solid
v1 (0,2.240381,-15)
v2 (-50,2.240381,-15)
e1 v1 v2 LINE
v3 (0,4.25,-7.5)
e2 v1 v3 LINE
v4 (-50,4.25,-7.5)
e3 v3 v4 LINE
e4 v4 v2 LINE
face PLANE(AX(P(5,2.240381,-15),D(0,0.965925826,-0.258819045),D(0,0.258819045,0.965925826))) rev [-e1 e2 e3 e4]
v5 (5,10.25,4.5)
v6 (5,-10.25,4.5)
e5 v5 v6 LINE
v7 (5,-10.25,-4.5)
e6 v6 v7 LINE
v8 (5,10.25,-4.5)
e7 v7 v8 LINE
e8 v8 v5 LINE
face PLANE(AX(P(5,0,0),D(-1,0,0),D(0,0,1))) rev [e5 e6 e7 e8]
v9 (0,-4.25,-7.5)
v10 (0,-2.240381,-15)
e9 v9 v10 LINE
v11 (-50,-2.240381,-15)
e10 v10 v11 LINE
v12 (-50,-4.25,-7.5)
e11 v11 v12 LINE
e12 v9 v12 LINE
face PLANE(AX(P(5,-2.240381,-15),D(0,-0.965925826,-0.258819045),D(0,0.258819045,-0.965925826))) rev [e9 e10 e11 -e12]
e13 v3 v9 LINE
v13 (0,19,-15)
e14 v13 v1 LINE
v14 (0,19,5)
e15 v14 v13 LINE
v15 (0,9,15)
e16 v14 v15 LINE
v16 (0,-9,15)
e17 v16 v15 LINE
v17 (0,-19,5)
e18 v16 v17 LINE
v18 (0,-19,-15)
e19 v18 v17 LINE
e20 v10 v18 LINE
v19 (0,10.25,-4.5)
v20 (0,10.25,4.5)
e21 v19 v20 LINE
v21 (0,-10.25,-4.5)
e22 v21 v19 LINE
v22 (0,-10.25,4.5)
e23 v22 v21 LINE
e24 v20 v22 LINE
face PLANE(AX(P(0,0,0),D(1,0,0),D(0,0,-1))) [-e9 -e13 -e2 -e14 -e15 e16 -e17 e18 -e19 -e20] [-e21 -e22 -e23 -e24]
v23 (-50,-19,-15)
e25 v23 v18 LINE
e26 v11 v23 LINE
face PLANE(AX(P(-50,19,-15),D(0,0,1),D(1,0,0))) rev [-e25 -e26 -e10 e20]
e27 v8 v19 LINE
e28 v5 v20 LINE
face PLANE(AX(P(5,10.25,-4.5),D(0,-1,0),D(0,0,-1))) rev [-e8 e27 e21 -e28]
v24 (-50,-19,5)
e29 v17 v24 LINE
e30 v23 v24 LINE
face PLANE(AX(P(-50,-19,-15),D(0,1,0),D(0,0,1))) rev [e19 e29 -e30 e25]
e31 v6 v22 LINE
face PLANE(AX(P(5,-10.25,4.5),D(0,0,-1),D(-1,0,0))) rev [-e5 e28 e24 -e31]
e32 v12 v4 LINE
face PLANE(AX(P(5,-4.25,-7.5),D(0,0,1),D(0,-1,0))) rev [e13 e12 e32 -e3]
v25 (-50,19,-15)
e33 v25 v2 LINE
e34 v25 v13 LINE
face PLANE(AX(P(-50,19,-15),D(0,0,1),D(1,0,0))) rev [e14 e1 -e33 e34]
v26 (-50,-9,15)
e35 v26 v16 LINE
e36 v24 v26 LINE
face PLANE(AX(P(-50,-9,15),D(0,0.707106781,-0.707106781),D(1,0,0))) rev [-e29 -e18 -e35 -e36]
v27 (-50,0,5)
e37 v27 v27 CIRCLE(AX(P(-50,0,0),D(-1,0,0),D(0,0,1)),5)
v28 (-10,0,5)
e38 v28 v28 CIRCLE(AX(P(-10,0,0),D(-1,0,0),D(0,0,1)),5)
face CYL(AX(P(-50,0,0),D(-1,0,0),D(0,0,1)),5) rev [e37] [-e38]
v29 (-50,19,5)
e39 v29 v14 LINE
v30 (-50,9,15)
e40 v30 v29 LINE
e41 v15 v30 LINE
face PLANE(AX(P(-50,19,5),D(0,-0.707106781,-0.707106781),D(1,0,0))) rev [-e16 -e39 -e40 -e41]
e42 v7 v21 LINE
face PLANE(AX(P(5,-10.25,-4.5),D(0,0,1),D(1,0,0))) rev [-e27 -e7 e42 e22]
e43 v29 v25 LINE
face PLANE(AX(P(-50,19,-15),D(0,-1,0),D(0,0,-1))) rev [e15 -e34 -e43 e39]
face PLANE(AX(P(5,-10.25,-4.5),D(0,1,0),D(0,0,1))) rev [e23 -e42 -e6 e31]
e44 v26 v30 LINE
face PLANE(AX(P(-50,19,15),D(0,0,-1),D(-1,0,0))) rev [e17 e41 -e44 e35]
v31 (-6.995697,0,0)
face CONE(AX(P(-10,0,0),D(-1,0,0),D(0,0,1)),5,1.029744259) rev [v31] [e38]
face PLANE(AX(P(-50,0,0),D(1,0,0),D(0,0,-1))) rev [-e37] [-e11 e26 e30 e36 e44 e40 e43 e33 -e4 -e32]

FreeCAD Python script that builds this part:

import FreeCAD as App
import Part
import Sketcher
Q = App.Units.Quantity


def edges_at(feature, points):
    """Names of the edges that pass closest to the given points."""
    edges = feature.Shape.Edges
    near = lambda p: min(range(len(edges)), key=lambda i: edges[i].distToShape(Part.Vertex(*p))[0])
    return sorted({f"Edge{near(p) + 1}" for p in points})

doc = App.newDocument("Part")
body = doc.addObject("PartDesign::Body", "Body")

# Sketch on YZ plane
sketch1 = doc.addObject("Sketcher::SketchObject", "Sketch")
body.addObject(sketch1)
sketch1.AttachmentSupport = (doc.YZ_Plane, [""])
sketch1.MapMode = "FlatFace"
sketch1.addGeometry(Part.LineSegment(App.Vector(-10, 4, 0), App.Vector(-10, -4, 0)), False)
sketch1.addGeometry(Part.LineSegment(App.Vector(-10, -4, 0), App.Vector(10, -4, 0)), False)
sketch1.addGeometry(Part.LineSegment(App.Vector(10, -4, 0), App.Vector(10, 4, 0)), False)
sketch1.addGeometry(Part.LineSegment(App.Vector(10, 4, 0), App.Vector(-10, 4, 0)), False)
sketch1.addConstraint(Sketcher.Constraint("Coincident", 0, 2, 1, 1))
sketch1.addConstraint(Sketcher.Constraint("Coincident", 1, 2, 2, 1))
sketch1.addConstraint(Sketcher.Constraint("Coincident", 2, 2, 3, 1))
sketch1.addConstraint(Sketcher.Constraint("Coincident", 3, 2, 0, 1))
sketch1.addConstraint(Sketcher.Constraint("Vertical", 0))
sketch1.addConstraint(Sketcher.Constraint("Horizontal", 1))
sketch1.addConstraint(Sketcher.Constraint("Vertical", 2))
sketch1.addConstraint(Sketcher.Constraint("Horizontal", 3))
sketch1.addConstraint(Sketcher.Constraint("Symmetric", 0, 2, 2, 2, -1, 1))
sketch1.addConstraint(Sketcher.Constraint("DistanceY", 0, 2, 0, 1, Q("9 mm")))
sketch1.addConstraint(Sketcher.Constraint("DistanceX", 1, 1, 1, 2, Q("20.5 mm")))
pad1 = doc.addObject("PartDesign::Pad", "Pad")
body.addObject(pad1)
pad1.Profile = sketch1
pad1.Length = 5

# Sketch on YZ plane
sketch2 = doc.addObject("Sketcher::SketchObject", "Sketch001")
body.addObject(sketch2)
sketch2.AttachmentSupport = (doc.YZ_Plane, [""])
sketch2.MapMode = "FlatFace"
sketch2.addGeometry(Part.LineSegment(App.Vector(19, 15, 0), App.Vector(19, -15, 0)), False)
sketch2.addGeometry(Part.LineSegment(App.Vector(19, -15, 0), App.Vector(-19, -15, 0)), False)
sketch2.addGeometry(Part.LineSegment(App.Vector(-19, -15, 0), App.Vector(-19, 15, 0)), False)
sketch2.addGeometry(Part.LineSegment(App.Vector(-19, 15, 0), App.Vector(19, 15, 0)), False)
sketch2.addConstraint(Sketcher.Constraint("Coincident", 0, 2, 1, 1))
sketch2.addConstraint(Sketcher.Constraint("Coincident", 1, 2, 2, 1))
sketch2.addConstraint(Sketcher.Constraint("Coincident", 2, 2, 3, 1))
sketch2.addConstraint(Sketcher.Constraint("Coincident", 3, 2, 0, 1))
sketch2.addConstraint(Sketcher.Constraint("Vertical", 0))
sketch2.addConstraint(Sketcher.Constraint("Horizontal", 1))
sketch2.addConstraint(Sketcher.Constraint("Vertical", 2))
sketch2.addConstraint(Sketcher.Constraint("Horizontal", 3))
sketch2.addConstraint(Sketcher.Constraint("Symmetric", 0, 2, 2, 2, -1, 1))
sketch2.addConstraint(Sketcher.Constraint("DistanceX", 1, 2, 1, 1, Q("38 mm")))
sketch2.addConstraint(Sketcher.Constraint("DistanceY", 0, 2, 0, 1, Q("30 mm")))
pad2 = doc.addObject("PartDesign::Pad", "Pad001")
body.addObject(pad2)
pad2.Profile = sketch2
pad2.Length = 50
pad2.Reversed = True

# Sketch on YZ plane
sketch3 = doc.addObject("Sketcher::SketchObject", "Sketch002")
body.addObject(sketch3)
sketch3.AttachmentSupport = (doc.YZ_Plane, [""])
sketch3.MapMode = "FlatFace"
sketch3.AttachmentOffset = App.Placement(App.Vector(0, 0, -50), App.Rotation())
sketch3.addGeometry(Part.LineSegment(App.Vector(-2.2, -15, 0), App.Vector(-4.2, -7.5, 0)), False)
sketch3.addGeometry(Part.LineSegment(App.Vector(-4.2, -7.5, 0), App.Vector(4.2, -7.5, 0)), False)
sketch3.addGeometry(Part.LineSegment(App.Vector(4.2, -7.5, 0), App.Vector(2.2, -15, 0)), False)
sketch3.addGeometry(Part.LineSegment(App.Vector(2.2, -15, 0), App.Vector(-2.2, -15, 0)), False)
sketch3.addConstraint(Sketcher.Constraint("Coincident", 0, 2, 1, 1))
sketch3.addConstraint(Sketcher.Constraint("Coincident", 1, 2, 2, 1))
sketch3.addConstraint(Sketcher.Constraint("Coincident", 2, 2, 3, 1))
sketch3.addConstraint(Sketcher.Constraint("Coincident", 3, 2, 0, 1))
sketch3.addConstraint(Sketcher.Constraint("Horizontal", 1))
sketch3.addConstraint(Sketcher.Constraint("Horizontal", 3))
sketch3.addConstraint(Sketcher.Constraint("Equal", 0, 2))
sketch3.addConstraint(Sketcher.Constraint("Angle", 0, Q("105 deg")))
sketch3.addConstraint(Sketcher.Constraint("DistanceX", 1, 1, 1, 2, Q("8.5 mm")))
sketch3.addConstraint(Sketcher.Constraint("DistanceY", 2, 2, -1, 1, Q("15 mm")))
sketch3.addConstraint(Sketcher.Constraint("DistanceY", 0, 2, -1, 1, Q("7.5 mm")))
sketch3.addConstraint(Sketcher.Constraint("DistanceX", 0, 2, -1, 1, Q("4.25 mm")))
pocket1 = doc.addObject("PartDesign::Pocket", "Pocket")
body.addObject(pocket1)
pocket1.Profile = sketch3
pocket1.Type = "ThroughAll"
pocket1.Reversed = True

# Sketch on YZ plane
sketch4 = doc.addObject("Sketcher::SketchObject", "Sketch003")
body.addObject(sketch4)
sketch4.AttachmentSupport = (doc.YZ_Plane, [""])
sketch4.MapMode = "FlatFace"
sketch4.AttachmentOffset = App.Placement(App.Vector(0, 0, -50), App.Rotation())
sketch4.addGeometry(Part.Circle(App.Vector(0, 0, 0), App.Vector(0, 0, 1), 5), False)
sketch4.addConstraint(Sketcher.Constraint("Coincident", 0, 3, -1, 1))
sketch4.addConstraint(Sketcher.Constraint("Diameter", 0, Q("10 mm")))
doc.recompute()
hole = doc.addObject("PartDesign::Hole", "Hole")
body.addObject(hole)
hole.Profile = sketch4
hole.ThreadType = "None"
hole.Diameter = 10
hole.DepthType = "Dimension"
hole.Depth = 40
hole.DrillPoint = "Angled"
hole.DrillPointAngle = 118
hole.Reversed = True
doc.recompute()

chamfer = doc.addObject("PartDesign::Chamfer", "Chamfer")
body.addObject(chamfer)
chamfer.Base = (hole, edges_at(hole, [(-25, -19, 15), (-25, 19, 15)]))
chamfer.Size = 10

doc.recompute()
